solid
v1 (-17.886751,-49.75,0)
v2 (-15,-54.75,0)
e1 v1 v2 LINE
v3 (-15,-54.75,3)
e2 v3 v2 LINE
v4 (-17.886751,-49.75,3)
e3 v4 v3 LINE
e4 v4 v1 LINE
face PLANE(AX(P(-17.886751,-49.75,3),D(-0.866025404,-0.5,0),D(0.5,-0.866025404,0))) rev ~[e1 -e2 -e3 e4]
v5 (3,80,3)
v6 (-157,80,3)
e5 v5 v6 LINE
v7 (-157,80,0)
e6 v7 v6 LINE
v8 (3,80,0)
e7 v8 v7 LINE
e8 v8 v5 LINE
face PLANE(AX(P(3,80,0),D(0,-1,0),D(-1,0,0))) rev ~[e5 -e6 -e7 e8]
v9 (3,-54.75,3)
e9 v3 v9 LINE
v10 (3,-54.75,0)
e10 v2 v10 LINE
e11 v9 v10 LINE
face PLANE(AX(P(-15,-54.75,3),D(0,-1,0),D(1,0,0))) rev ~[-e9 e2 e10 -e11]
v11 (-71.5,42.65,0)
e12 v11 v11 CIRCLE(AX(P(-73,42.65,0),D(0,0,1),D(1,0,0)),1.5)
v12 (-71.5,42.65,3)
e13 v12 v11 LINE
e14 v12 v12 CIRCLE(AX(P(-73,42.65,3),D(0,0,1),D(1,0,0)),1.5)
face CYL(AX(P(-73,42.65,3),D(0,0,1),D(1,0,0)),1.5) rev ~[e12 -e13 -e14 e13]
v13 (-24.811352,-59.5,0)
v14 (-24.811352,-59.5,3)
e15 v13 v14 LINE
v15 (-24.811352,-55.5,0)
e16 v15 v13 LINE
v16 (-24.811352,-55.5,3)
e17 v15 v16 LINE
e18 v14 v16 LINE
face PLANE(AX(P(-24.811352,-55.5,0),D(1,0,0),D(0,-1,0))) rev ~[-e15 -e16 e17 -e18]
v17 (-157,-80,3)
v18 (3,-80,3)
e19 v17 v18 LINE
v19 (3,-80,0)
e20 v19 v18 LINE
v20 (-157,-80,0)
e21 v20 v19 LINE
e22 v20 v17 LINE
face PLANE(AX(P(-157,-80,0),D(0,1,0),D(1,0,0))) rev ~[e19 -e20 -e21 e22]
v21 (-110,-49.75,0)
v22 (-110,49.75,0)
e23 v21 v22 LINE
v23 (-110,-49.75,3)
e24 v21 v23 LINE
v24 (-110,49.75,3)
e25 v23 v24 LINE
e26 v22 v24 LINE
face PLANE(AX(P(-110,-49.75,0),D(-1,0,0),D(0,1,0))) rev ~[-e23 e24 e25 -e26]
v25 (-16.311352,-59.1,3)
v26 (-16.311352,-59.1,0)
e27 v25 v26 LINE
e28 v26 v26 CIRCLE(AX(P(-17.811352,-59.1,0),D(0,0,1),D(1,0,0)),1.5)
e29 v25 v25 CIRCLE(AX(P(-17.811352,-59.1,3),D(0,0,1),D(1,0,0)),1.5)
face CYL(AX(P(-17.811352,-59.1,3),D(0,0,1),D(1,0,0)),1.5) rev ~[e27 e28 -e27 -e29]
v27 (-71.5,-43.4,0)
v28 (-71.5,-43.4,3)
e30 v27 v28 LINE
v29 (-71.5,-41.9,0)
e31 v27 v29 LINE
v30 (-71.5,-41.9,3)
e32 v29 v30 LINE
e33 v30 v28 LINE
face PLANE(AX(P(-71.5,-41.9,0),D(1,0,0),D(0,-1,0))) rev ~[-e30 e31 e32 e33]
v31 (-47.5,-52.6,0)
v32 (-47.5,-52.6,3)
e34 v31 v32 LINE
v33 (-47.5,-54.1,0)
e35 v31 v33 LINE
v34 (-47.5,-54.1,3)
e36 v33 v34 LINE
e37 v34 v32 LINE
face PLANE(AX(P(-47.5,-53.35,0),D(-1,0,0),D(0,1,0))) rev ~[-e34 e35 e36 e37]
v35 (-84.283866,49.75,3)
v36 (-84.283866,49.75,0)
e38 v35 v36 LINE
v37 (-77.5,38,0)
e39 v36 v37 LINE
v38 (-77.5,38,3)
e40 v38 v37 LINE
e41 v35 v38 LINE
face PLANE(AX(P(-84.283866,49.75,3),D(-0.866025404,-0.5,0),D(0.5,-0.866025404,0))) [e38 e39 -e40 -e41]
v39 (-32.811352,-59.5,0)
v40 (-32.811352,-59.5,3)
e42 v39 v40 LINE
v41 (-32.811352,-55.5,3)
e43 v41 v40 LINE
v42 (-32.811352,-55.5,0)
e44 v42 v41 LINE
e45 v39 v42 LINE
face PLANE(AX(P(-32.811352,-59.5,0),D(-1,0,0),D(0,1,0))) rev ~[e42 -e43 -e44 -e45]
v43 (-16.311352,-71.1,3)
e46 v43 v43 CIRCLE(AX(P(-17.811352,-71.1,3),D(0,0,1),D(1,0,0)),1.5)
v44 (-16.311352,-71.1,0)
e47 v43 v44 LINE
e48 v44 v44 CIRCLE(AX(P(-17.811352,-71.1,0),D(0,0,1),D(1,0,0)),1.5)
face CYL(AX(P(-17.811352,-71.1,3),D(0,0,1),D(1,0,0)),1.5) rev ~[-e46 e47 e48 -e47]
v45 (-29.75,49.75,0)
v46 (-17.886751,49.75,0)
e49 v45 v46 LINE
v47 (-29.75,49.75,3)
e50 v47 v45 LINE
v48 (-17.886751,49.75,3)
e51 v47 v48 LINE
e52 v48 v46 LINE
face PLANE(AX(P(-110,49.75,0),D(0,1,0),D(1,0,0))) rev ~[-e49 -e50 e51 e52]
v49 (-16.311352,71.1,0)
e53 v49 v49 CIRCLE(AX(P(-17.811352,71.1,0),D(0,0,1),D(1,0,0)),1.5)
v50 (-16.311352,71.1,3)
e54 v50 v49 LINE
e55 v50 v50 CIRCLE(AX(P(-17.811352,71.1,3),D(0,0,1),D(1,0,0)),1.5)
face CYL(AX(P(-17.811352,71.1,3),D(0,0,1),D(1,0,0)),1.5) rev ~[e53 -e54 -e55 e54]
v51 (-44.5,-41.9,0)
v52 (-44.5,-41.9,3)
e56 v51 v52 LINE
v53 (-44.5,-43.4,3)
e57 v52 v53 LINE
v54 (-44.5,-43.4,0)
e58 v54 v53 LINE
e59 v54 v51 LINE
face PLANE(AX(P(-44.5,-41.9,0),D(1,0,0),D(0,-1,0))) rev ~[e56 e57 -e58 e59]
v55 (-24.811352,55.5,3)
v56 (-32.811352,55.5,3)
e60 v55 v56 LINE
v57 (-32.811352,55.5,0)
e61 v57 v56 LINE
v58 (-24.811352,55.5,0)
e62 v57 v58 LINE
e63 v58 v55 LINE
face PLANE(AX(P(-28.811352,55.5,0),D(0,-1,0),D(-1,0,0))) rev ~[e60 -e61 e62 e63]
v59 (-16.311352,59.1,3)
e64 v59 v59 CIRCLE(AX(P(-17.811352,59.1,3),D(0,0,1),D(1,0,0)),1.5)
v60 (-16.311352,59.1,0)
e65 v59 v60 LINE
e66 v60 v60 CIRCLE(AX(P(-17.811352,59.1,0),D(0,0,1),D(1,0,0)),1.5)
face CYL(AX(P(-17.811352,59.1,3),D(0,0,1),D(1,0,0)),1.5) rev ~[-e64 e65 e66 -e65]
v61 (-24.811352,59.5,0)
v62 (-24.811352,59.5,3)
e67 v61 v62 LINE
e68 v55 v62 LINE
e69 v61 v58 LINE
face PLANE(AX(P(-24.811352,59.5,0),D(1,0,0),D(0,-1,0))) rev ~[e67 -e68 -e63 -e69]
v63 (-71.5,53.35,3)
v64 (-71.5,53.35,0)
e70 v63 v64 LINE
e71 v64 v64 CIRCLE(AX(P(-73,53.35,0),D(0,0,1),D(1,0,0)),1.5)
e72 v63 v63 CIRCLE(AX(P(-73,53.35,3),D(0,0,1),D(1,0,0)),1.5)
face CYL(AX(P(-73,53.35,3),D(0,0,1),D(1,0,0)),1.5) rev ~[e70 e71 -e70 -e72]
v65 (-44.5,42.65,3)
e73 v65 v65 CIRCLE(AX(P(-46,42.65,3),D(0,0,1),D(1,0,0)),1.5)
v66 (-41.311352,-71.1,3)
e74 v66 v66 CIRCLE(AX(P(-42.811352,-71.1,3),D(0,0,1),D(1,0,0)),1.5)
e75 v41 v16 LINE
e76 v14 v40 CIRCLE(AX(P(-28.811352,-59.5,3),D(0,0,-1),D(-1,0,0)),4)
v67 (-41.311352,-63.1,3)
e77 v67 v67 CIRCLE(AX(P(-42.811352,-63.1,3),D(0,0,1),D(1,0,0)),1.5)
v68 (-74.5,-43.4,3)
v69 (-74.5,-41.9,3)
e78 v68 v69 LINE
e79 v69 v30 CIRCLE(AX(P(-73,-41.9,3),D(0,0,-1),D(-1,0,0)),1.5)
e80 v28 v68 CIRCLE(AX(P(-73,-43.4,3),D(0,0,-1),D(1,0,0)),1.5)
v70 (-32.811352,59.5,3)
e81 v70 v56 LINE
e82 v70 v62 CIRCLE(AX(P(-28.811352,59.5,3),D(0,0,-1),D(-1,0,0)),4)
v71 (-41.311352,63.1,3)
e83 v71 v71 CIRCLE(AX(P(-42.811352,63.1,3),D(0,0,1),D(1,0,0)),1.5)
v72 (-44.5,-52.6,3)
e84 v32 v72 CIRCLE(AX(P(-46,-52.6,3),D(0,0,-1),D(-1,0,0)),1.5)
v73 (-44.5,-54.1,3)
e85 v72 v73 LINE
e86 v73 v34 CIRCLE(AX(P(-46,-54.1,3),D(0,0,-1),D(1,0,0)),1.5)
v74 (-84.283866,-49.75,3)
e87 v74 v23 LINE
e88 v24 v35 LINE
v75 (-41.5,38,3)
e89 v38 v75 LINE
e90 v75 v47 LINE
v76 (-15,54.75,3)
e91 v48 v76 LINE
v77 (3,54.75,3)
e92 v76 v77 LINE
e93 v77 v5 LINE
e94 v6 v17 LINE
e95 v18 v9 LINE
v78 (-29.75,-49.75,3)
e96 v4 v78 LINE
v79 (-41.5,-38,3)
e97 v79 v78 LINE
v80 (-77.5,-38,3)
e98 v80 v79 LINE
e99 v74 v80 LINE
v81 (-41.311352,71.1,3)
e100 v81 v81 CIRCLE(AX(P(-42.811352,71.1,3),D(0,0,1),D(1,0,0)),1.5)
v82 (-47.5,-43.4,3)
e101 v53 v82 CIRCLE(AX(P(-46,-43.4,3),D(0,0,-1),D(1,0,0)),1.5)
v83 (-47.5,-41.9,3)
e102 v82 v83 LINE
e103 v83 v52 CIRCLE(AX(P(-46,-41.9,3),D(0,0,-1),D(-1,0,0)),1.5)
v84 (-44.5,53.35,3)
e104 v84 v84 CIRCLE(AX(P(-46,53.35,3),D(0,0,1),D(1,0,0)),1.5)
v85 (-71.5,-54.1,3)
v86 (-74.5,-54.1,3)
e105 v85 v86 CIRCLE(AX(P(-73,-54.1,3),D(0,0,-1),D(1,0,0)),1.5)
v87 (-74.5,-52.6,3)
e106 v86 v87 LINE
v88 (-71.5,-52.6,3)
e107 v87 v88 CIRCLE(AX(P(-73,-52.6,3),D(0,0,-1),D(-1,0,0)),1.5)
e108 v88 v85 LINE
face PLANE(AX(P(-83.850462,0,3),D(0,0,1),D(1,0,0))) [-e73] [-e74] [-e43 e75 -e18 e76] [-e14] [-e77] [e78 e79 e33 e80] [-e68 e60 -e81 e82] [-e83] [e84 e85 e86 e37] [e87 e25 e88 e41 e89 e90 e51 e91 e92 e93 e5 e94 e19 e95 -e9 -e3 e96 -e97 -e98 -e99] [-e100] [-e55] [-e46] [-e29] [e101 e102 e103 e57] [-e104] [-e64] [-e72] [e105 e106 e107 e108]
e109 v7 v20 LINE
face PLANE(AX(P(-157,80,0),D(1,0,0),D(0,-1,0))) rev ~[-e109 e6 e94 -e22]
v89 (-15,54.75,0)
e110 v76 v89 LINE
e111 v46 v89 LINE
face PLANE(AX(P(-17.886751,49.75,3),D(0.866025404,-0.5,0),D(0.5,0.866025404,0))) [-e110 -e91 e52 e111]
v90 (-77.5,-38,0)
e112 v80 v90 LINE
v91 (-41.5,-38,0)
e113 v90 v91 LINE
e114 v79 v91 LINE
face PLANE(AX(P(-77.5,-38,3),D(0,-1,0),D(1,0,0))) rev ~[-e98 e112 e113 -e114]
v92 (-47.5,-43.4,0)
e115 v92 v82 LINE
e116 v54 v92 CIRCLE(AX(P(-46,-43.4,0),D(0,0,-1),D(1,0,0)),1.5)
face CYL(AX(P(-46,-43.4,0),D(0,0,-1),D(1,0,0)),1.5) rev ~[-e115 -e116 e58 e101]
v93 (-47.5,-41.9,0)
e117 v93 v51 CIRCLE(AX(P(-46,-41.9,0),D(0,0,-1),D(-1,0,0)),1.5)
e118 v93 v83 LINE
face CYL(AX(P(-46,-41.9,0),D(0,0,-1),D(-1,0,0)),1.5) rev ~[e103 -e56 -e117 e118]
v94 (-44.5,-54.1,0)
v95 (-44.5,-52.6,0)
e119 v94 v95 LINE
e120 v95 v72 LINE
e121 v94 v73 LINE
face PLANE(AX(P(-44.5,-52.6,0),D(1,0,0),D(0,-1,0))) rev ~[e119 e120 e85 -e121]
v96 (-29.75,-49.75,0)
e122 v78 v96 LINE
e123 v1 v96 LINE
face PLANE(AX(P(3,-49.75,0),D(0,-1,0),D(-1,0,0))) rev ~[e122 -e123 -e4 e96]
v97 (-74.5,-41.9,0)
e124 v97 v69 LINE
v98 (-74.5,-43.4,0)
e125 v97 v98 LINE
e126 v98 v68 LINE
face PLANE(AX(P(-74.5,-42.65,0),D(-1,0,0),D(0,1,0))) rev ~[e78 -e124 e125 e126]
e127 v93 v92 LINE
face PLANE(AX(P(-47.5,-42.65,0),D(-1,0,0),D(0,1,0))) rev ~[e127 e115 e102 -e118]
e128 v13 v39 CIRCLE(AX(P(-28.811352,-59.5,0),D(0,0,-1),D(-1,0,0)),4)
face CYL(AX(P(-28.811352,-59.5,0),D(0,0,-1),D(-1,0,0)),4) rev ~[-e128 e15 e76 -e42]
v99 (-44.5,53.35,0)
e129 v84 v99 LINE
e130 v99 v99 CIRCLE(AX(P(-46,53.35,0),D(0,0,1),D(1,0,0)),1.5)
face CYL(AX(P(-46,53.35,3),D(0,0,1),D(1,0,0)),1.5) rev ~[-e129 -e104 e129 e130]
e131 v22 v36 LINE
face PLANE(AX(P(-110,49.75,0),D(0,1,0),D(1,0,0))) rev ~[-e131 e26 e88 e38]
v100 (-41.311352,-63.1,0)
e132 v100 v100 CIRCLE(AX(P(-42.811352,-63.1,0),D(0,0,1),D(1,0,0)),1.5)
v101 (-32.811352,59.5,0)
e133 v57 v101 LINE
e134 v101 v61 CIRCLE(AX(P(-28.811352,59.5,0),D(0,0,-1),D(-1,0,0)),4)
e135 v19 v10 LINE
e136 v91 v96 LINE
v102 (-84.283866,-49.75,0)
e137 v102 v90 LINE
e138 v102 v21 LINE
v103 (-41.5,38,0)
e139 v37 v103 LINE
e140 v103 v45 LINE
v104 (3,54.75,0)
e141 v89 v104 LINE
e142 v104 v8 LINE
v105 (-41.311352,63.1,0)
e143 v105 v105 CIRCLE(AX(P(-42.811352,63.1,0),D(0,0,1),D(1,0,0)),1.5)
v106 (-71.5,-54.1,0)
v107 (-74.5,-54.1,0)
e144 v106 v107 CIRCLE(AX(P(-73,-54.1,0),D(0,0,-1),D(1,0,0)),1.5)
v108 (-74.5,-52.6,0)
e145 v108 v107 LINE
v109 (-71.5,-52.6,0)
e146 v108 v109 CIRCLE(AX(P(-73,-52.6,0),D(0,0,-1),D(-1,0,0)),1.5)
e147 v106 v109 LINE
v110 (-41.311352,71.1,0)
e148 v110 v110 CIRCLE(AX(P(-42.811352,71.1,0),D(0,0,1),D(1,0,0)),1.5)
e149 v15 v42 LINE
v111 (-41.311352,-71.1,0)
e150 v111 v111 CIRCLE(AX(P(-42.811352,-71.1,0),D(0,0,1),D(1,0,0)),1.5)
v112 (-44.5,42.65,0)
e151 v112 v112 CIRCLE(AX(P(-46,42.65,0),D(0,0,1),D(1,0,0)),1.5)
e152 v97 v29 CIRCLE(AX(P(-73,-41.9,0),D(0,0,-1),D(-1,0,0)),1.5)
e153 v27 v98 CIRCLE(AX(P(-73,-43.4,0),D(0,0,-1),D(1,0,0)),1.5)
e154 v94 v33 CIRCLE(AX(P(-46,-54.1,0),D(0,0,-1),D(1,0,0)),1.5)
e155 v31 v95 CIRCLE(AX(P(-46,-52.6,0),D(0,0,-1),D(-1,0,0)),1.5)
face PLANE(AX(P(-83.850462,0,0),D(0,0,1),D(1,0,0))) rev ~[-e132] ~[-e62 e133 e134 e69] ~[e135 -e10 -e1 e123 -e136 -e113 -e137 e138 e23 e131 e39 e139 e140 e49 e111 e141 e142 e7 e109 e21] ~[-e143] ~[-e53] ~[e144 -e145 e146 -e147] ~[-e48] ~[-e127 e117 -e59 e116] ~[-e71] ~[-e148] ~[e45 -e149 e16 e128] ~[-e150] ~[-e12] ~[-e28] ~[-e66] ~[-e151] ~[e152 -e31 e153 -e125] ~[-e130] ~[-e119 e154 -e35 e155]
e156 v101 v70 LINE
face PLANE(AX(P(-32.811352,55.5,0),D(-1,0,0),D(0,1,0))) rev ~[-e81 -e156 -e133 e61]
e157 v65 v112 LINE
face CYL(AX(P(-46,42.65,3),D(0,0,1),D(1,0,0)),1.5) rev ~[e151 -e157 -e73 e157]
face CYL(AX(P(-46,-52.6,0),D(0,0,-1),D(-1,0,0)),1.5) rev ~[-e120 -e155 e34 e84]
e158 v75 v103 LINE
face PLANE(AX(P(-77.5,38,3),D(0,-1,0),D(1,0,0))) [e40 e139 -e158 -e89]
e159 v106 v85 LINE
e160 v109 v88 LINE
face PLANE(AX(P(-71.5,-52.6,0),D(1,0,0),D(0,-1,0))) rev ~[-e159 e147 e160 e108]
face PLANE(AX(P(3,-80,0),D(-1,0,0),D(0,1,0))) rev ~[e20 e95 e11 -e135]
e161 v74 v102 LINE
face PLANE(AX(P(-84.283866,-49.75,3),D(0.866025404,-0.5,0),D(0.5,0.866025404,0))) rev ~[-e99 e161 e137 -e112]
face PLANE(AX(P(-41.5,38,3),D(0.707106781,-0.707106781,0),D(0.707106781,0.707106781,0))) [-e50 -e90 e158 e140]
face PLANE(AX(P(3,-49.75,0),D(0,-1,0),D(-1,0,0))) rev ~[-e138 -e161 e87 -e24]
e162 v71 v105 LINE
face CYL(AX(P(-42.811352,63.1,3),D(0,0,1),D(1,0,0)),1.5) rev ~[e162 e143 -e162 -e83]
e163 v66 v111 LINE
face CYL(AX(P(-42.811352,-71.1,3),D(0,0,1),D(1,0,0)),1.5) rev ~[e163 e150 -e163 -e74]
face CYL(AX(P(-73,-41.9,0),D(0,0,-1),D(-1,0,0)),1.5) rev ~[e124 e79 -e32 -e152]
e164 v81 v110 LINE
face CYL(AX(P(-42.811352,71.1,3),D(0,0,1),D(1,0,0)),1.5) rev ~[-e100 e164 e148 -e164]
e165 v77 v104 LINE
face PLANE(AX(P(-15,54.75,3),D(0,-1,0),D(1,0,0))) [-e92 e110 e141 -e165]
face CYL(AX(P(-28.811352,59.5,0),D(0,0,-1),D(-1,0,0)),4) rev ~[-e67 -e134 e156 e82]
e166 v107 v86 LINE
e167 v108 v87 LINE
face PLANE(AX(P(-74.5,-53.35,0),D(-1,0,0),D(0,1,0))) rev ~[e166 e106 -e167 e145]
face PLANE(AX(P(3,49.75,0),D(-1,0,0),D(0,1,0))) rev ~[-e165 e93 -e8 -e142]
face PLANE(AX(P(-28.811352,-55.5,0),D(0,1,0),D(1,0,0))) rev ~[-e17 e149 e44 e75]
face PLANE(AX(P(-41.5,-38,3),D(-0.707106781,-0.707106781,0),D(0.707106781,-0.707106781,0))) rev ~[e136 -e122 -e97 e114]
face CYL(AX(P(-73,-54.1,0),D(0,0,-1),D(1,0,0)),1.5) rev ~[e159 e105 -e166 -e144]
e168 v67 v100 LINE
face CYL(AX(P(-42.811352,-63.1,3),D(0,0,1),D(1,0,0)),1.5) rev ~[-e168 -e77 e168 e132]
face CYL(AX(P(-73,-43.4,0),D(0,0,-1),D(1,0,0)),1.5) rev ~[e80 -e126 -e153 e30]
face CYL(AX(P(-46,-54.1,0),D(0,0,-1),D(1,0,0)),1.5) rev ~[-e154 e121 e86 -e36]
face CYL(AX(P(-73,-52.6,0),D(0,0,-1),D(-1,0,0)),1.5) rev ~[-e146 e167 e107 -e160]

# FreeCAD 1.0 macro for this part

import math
import FreeCAD as App
import Part
import Sketcher
Q = App.Units.Quantity


def add_polygon(sketch, points):
    """Adds a closed chain of lines whose ends are joined by coincident constraints."""
    first, n = sketch.GeometryCount, len(points)
    for a, b in zip(points, points[1:] + points[:1]):
        sketch.addGeometry(Part.LineSegment(App.Vector(*a, 0), App.Vector(*b, 0)), False)
    for i in range(n):
        sketch.addConstraint(Sketcher.Constraint("Coincident", first + i, 2, first + (i + 1) % n, 1))

doc = App.newDocument("Part")
params = doc.addObject("Spreadsheet::Sheet", "Params")
for row, (alias, value) in enumerate([
    ("sketch1_width", "113 mm"),
    ("sketch1_width2", "160 mm"),
    ("sketch1_height", "99.5 mm"),
    ("pad1_length", "3 mm"),
    ("sketch2_width", "36 mm"),
    ("pad2_length", "3 mm"),
    ("sketch3_width", "18 mm"),
    ("sketch3_height", "5 mm"),
    ("sketch4_diameter", "3 mm"),
    ("pocket2_length", "10 mm"),
    ("sketch5_diameter", "8 mm"),
    ("pocket3_length", "6 mm"),
    ("sketch6_diameter", "3 mm"),
    ("pocket4_length", "4 mm"),
    ("sketch7_radius", "4 mm"),
    ("pocket5_length", "10 mm"),
    ("sketch8_radius", "1.5 mm"),
    ("sketch8_height", "0.75 mm"),
], start=1):
    params.set(f"A{row}", alias)
    params.set(f"B{row}", "=" + value)
    params.setAlias(f"B{row}", alias)

body = doc.addObject("PartDesign::Body", "Body")

# Sketch on XY plane
sketch1 = body.newObject("Sketcher::SketchObject", "Sketch")
sketch1.AttachmentSupport = (doc.getObject("XY_Plane"), [""])
sketch1.MapMode = "FlatFace"
add_polygon(sketch1, [(-110, 50), (3, 50), (3, 80), (-157, 80), (-157, -80), (3, -80), (3, -50), (-110, -50)])  # lines 0-7
sketch1.addConstraint([
    Sketcher.Constraint("Horizontal", 0),
    Sketcher.Constraint("Vertical", 1),
    Sketcher.Constraint("Horizontal", 2),
    Sketcher.Constraint("Vertical", 3),
    Sketcher.Constraint("Horizontal", 4),
    Sketcher.Constraint("Vertical", 5),
    Sketcher.Constraint("Horizontal", 6),
    Sketcher.Constraint("Vertical", 7),
    Sketcher.Constraint("Symmetric", 1, 2, 4, 2, -1),
    Sketcher.Constraint("Equal", 4, 3),
    Sketcher.Constraint("Equal", 1, 5),
    Sketcher.Constraint("DistanceX", 0, 1, 0, 2, Q("113 mm")),
    Sketcher.Constraint("DistanceX", 2, 2, 2, 1, Q("160 mm")),
    Sketcher.Constraint("DistanceY", 7, 1, 7, 2, Q("99.5 mm")),
    Sketcher.Constraint("DistanceX", -1, 1, 0, 2, Q("3 mm")),
])
sketch1.setExpression("Constraints[19]", "Params.sketch1_width")
sketch1.setExpression("Constraints[20]", "Params.sketch1_width2")
sketch1.setExpression("Constraints[21]", "Params.sketch1_height")
pad1 = body.newObject("PartDesign::Pad", "Pad")
pad1.Profile = sketch1
pad1.setExpression("Length", "Params.pad1_length")

# Sketch on XY plane
sketch2 = body.newObject("Sketcher::SketchObject", "Sketch001")
sketch2.AttachmentSupport = (doc.getObject("XY_Plane"), [""])
sketch2.MapMode = "FlatFace"
sketch2.AttachmentOffset = App.Placement(App.Vector(0, 0, 3), App.Rotation())
add_polygon(sketch2, [(-78, 38), (-42, 38), (-30, 50), (-84, 50)])  # lines 0-3
add_polygon(sketch2, [(-84, -50), (-30, -50), (-42, -38), (-78, -38)])  # lines 4-7
sketch2.addConstraint([
    Sketcher.Constraint("Horizontal", 0),
    Sketcher.Constraint("Horizontal", 2),
    Sketcher.Constraint("Horizontal", 4),
    Sketcher.Constraint("Horizontal", 6),
    Sketcher.Constraint("Symmetric", 1, 2, 4, 2, -1),
    Sketcher.Constraint("Symmetric", 0, 2, 5, 2, -1),
    Sketcher.Constraint("Perpendicular", 1, 5),
    Sketcher.Constraint("Vertical", 3, 2, 6, 2),
    Sketcher.Constraint("Vertical", 2, 2, 7, 2),
    Sketcher.Constraint("DistanceX", 0, 1, 0, 2, Q("36 mm")),
    Sketcher.Constraint("Angle", 3, Q("-60 deg")),
    Sketcher.Constraint("DistanceY", -1, 1, 0, 2, Q("38 mm")),
    Sketcher.Constraint("DistanceX", 0, 2, -1, 1, Q("41.5 mm")),
    Sketcher.Constraint("DistanceY", 4, 2, 1, 2, Q("99.5 mm")),
])
sketch2.setExpression("Constraints[17]", "Params.sketch2_width")
pad2 = body.newObject("PartDesign::Pad", "Pad001")
pad2.Profile = sketch2
pad2.setExpression("Length", "Params.pad2_length")
pad2.Reversed = True

# Sketch on XY plane
sketch3 = body.newObject("Sketcher::SketchObject", "Sketch002")
sketch3.AttachmentSupport = (doc.getObject("XY_Plane"), [""])
sketch3.MapMode = "FlatFace"
sketch3.AttachmentOffset = App.Placement(App.Vector(0, 0, 3), App.Rotation())
add_polygon(sketch3, [(-18, -50), (-15, -55), (3, -55), (3, -50)])  # lines 0-3
add_polygon(sketch3, [(-15, 55), (-18, 50), (3, 50), (3, 55)])  # lines 4-7
sketch3.addConstraint([
    Sketcher.Constraint("Horizontal", 1),
    Sketcher.Constraint("Vertical", 2),
    Sketcher.Constraint("Horizontal", 3),
    Sketcher.Constraint("Horizontal", 5),
    Sketcher.Constraint("Vertical", 6),
    Sketcher.Constraint("Horizontal", 7),
    Sketcher.Constraint("Symmetric", 3, 2, 4, 2, -1),
    Sketcher.Constraint("Symmetric", 1, 2, 6, 2, -1),
    Sketcher.Constraint("Vertical", 0, 2, 7, 2),
    Sketcher.Constraint("DistanceX", 1, 1, 1, 2, Q("18 mm")),
    Sketcher.Constraint("DistanceY", 2, 1, 2, 2, Q("5 mm")),
    Sketcher.Constraint("Angle", 0, Q("-60 deg")),
    Sketcher.Constraint("DistanceX", 0, 2, -1, 1, Q("15 mm")),
    Sketcher.Constraint("DistanceY", 3, 2, 4, 2, Q("99.5 mm")),
])
sketch3.setExpression("Constraints[17]", "Params.sketch3_width")
sketch3.setExpression("Constraints[18]", "Params.sketch3_height")
pocket1 = body.newObject("PartDesign::Pocket", "Pocket")
pocket1.Profile = sketch3
pocket1.Type = "ThroughAll"

# Sketch on XY plane
sketch4 = body.newObject("Sketcher::SketchObject", "Sketch003")
sketch4.AttachmentSupport = (doc.getObject("XY_Plane"), [""])
sketch4.MapMode = "FlatFace"
sketch4.AttachmentOffset = App.Placement(App.Vector(0, 0, 3), App.Rotation())
sketch4.addGeometry([
    Part.Circle(App.Vector(-73, -42.6, 0), App.Vector(0, 0, 1), 1.5),  # 0
    Part.Circle(App.Vector(-46, -42.6, 0), App.Vector(0, 0, 1), 1.5),  # 1
    Part.Circle(App.Vector(-46, -53.4, 0), App.Vector(0, 0, 1), 1.5),  # 2
    Part.Circle(App.Vector(-73, -53.4, 0), App.Vector(0, 0, 1), 1.5),  # 3
    Part.Circle(App.Vector(-46, 42.6, 0), App.Vector(0, 0, 1), 1.5),  # 4
    Part.Circle(App.Vector(-73, 42.6, 0), App.Vector(0, 0, 1), 1.5),  # 5
    Part.Circle(App.Vector(-73, 53.4, 0), App.Vector(0, 0, 1), 1.5),  # 6
    Part.Circle(App.Vector(-46, 53.4, 0), App.Vector(0, 0, 1), 1.5),  # 7
], False)
sketch4.addConstraint([
    Sketcher.Constraint("Equal", 0, 1),
    Sketcher.Constraint("Equal", 1, 2),
    Sketcher.Constraint("Equal", 2, 3),
    Sketcher.Constraint("Equal", 3, 4),
    Sketcher.Constraint("Equal", 4, 5),
    Sketcher.Constraint("Equal", 5, 6),
    Sketcher.Constraint("Equal", 6, 7),
    Sketcher.Constraint("Symmetric", 1, 3, 4, 3, -1),
    Sketcher.Constraint("Symmetric", 0, 3, 5, 3, -1),
    Sketcher.Constraint("Symmetric", 3, 3, 6, 3, -1),
    Sketcher.Constraint("Symmetric", 2, 3, 7, 3, -1),
    Sketcher.Constraint("Horizontal", 0, 3, 1, 3),
    Sketcher.Constraint("Horizontal", 2, 3, 3, 3),
    Sketcher.Constraint("Vertical", 1, 3, 2, 3),
    Sketcher.Constraint("Vertical", 0, 3, 3, 3),
    Sketcher.Constraint("Diameter", 0, Q("3 mm")),
    Sketcher.Constraint("DistanceX", 0, 3, -1, 1, Q("73 mm")),
    Sketcher.Constraint("DistanceX", 1, 3, -1, 1, Q("46 mm")),
    Sketcher.Constraint("DistanceY", 2, 3, 4, 3, Q("96 mm")),
    Sketcher.Constraint("DistanceY", 2, 3, 1, 3, Q("10.7 mm")),
])
sketch4.setExpression("Constraints[15]", "Params.sketch4_diameter")
pocket2 = body.newObject("PartDesign::Pocket", "Pocket001")
pocket2.Profile = sketch4
pocket2.setExpression("Length", "Params.pocket2_length")

# Sketch on XY plane
sketch5 = body.newObject("Sketcher::SketchObject", "Sketch004")
sketch5.AttachmentSupport = (doc.getObject("XY_Plane"), [""])
sketch5.MapMode = "FlatFace"
sketch5.addGeometry([
    Part.Circle(App.Vector(-28.8, -59.5, 0), App.Vector(0, 0, 1), 4),
    Part.Circle(App.Vector(-28.8, 59.5, 0), App.Vector(0, 0, 1), 4),
], False)
sketch5.addConstraint([
    Sketcher.Constraint("Equal", 0, 1),
    Sketcher.Constraint("Symmetric", 0, 3, 1, 3, -1),
    Sketcher.Constraint("Diameter", 0, Q("8 mm")),
    Sketcher.Constraint("DistanceY", 0, 3, 1, 3, Q("119 mm")),
    Sketcher.Constraint("DistanceX", 0, 3, -1, 1, Q("28.811352 mm")),
])
sketch5.setExpression("Constraints[2]", "Params.sketch5_diameter")
pocket3 = body.newObject("PartDesign::Pocket", "Pocket002")
pocket3.Profile = sketch5
pocket3.setExpression("Length", "Params.pocket3_length")
pocket3.Reversed = True

# Sketch on XY plane
sketch6 = body.newObject("Sketcher::SketchObject", "Sketch005")
sketch6.AttachmentSupport = (doc.getObject("XY_Plane"), [""])
sketch6.MapMode = "FlatFace"
sketch6.AttachmentOffset = App.Placement(App.Vector(0, 0, 3), App.Rotation())
sketch6.addGeometry([
    Part.Circle(App.Vector(-17.8, 59.1, 0), App.Vector(0, 0, 1), 1.5),  # 0
    Part.Circle(App.Vector(-17.8, 71.1, 0), App.Vector(0, 0, 1), 1.5),  # 1
    Part.Circle(App.Vector(-42.8, 63.1, 0), App.Vector(0, 0, 1), 1.5),  # 2
    Part.Circle(App.Vector(-42.8, 71.1, 0), App.Vector(0, 0, 1), 1.5),  # 3
    Part.Circle(App.Vector(-42.8, -71.1, 0), App.Vector(0, 0, 1), 1.5),  # 4
    Part.Circle(App.Vector(-42.8, -63.1, 0), App.Vector(0, 0, 1), 1.5),  # 5
    Part.Circle(App.Vector(-17.8, -59.1, 0), App.Vector(0, 0, 1), 1.5),  # 6
    Part.Circle(App.Vector(-17.8, -71.1, 0), App.Vector(0, 0, 1), 1.5),  # 7
], False)
sketch6.addConstraint([
    Sketcher.Constraint("Equal", 0, 1),
    Sketcher.Constraint("Equal", 1, 2),
    Sketcher.Constraint("Equal", 2, 3),
    Sketcher.Constraint("Equal", 3, 4),
    Sketcher.Constraint("Equal", 4, 5),
    Sketcher.Constraint("Equal", 5, 6),
    Sketcher.Constraint("Equal", 6, 7),
    Sketcher.Constraint("Symmetric", 3, 3, 4, 3, -1),
    Sketcher.Constraint("Symmetric", 2, 3, 5, 3, -1),
    Sketcher.Constraint("Symmetric", 0, 3, 6, 3, -1),
    Sketcher.Constraint("Symmetric", 1, 3, 7, 3, -1),
    Sketcher.Constraint("Horizontal", 1, 3, 3, 3),
    Sketcher.Constraint("Vertical", 0, 3, 1, 3),
    Sketcher.Constraint("Vertical", 2, 3, 3, 3),
    Sketcher.Constraint("Diameter", 0, Q("3 mm")),
    Sketcher.Constraint("DistanceY", 0, 3, 1, 3, Q("12 mm")),
    Sketcher.Constraint("DistanceX", 2, 3, 0, 3, Q("25 mm")),
    Sketcher.Constraint("DistanceY", 0, 3, 2, 3, Q("4 mm")),
    Sketcher.Constraint("DistanceY", -1, 1, 0, 3, Q("59.1 mm")),
    Sketcher.Constraint("DistanceX", 0, 3, -1, 1, Q("17.811352 mm")),
])
sketch6.setExpression("Constraints[14]", "Params.sketch6_diameter")
pocket4 = body.newObject("PartDesign::Pocket", "Pocket003")
pocket4.Profile = sketch6
pocket4.setExpression("Length", "Params.pocket4_length")

# Sketch on XY plane
sketch7 = body.newObject("Sketcher::SketchObject", "Sketch006")
sketch7.AttachmentSupport = (doc.getObject("XY_Plane"), [""])
sketch7.MapMode = "FlatFace"
sketch7.addGeometry([
    Part.LineSegment(App.Vector(-32.8, -55.5, 0), App.Vector(-28.8, -55.5, 0)),  # 0
    Part.ArcOfCircle(Part.Circle(App.Vector(-28.8, -59.5, 0), App.Vector(0, 0, 1), 4), math.radians(90), math.radians(180)),  # 1
    Part.LineSegment(App.Vector(-32.8, -59.5, 0), App.Vector(-32.8, -55.5, 0)),  # 2
    Part.LineSegment(App.Vector(-24.8, -55.5, 0), App.Vector(-24.8, -59.5, 0)),  # 3
    Part.ArcOfCircle(Part.Circle(App.Vector(-28.8, -59.5, 0), App.Vector(0, 0, 1), 4), math.radians(0), math.radians(90)),  # 4
    Part.LineSegment(App.Vector(-28.8, -55.5, 0), App.Vector(-24.8, -55.5, 0)),  # 5
    Part.ArcOfCircle(Part.Circle(App.Vector(-28.8, 59.5, 0), App.Vector(0, 0, 1), 4), math.radians(-90), math.radians(0)),  # 6
    Part.LineSegment(App.Vector(-24.8, 59.5, 0), App.Vector(-24.8, 55.5, 0)),  # 7
    Part.LineSegment(App.Vector(-24.8, 55.5, 0), App.Vector(-28.8, 55.5, 0)),  # 8
    Part.LineSegment(App.Vector(-32.8, 55.5, 0), App.Vector(-32.8, 59.5, 0)),  # 9
    Part.ArcOfCircle(Part.Circle(App.Vector(-28.8, 59.5, 0), App.Vector(0, 0, 1), 4), math.radians(180), math.radians(270)),  # 10
    Part.LineSegment(App.Vector(-28.8, 55.5, 0), App.Vector(-32.8, 55.5, 0)),  # 11
], False)
sketch7.addConstraint([
    Sketcher.Constraint("Tangent", 0, 2, 1, 1),
    Sketcher.Constraint("Tangent", 1, 2, 2, 1),
    Sketcher.Constraint("Coincident", 2, 2, 0, 1),
    Sketcher.Constraint("Tangent", 3, 2, 4, 1),
    Sketcher.Constraint("Tangent", 4, 2, 5, 1),
    Sketcher.Constraint("Coincident", 5, 2, 3, 1),
    Sketcher.Constraint("Tangent", 6, 2, 7, 1),
    Sketcher.Constraint("Coincident", 7, 2, 8, 1),
    Sketcher.Constraint("Tangent", 8, 2, 6, 1),
    Sketcher.Constraint("Tangent", 9, 2, 10, 1),
    Sketcher.Constraint("Tangent", 10, 2, 11, 1),
    Sketcher.Constraint("Coincident", 11, 2, 9, 1),
    Sketcher.Constraint("Horizontal", 0),
    Sketcher.Constraint("Vertical", 2),
    Sketcher.Constraint("Vertical", 3),
    Sketcher.Constraint("Horizontal", 5),
    Sketcher.Constraint("Vertical", 7),
    Sketcher.Constraint("Horizontal", 8),
    Sketcher.Constraint("Vertical", 9),
    Sketcher.Constraint("Horizontal", 11),
    Sketcher.Constraint("Coincident", 4, 3, 1, 3),
    Sketcher.Constraint("Coincident", 10, 3, 6, 3),
    Sketcher.Constraint("Equal", 1, 4),
    Sketcher.Constraint("Equal", 4, 6),
    Sketcher.Constraint("Equal", 6, 10),
    Sketcher.Constraint("Symmetric", 1, 3, 6, 3, -1),
    Sketcher.Constraint("Radius", 1, Q("4 mm")),
    Sketcher.Constraint("DistanceY", 1, 3, 6, 3, Q("119 mm")),
    Sketcher.Constraint("DistanceX", 1, 3, -1, 1, Q("28.811352 mm")),
])
sketch7.setExpression("Constraints[26]", "Params.sketch7_radius")
pocket5 = body.newObject("PartDesign::Pocket", "Pocket004")
pocket5.Profile = sketch7
pocket5.setExpression("Length", "Params.pocket5_length")
pocket5.Reversed = True

# Sketch on XY plane
sketch8 = body.newObject("Sketcher::SketchObject", "Sketch007")
sketch8.AttachmentSupport = (doc.getObject("XY_Plane"), [""])
sketch8.MapMode = "FlatFace"
sketch8.addGeometry([
    Part.LineSegment(App.Vector(-71.5, -52.6, 0), App.Vector(-71.5, -53.4, 0)),  # 0
    Part.ArcOfCircle(Part.Circle(App.Vector(-73, -53.4, 0), App.Vector(0, 0, 1), 1.5), math.radians(0), math.radians(180)),  # 1
    Part.LineSegment(App.Vector(-74.5, -53.4, 0), App.Vector(-74.5, -52.6, 0)),  # 2
    Part.ArcOfCircle(Part.Circle(App.Vector(-73, -52.6, 0), App.Vector(0, 0, 1), 1.5), math.radians(0), math.radians(180)),  # 3
    Part.LineSegment(App.Vector(-71.5, -53.4, 0), App.Vector(-71.5, -54.1, 0)),  # 4
    Part.ArcOfCircle(Part.Circle(App.Vector(-73, -54.1, 0), App.Vector(0, 0, 1), 1.5), math.radians(180), math.radians(360)),  # 5
    Part.LineSegment(App.Vector(-74.5, -54.1, 0), App.Vector(-74.5, -53.4, 0)),  # 6
    Part.ArcOfCircle(Part.Circle(App.Vector(-73, -53.4, 0), App.Vector(0, 0, 1), 1.5), math.radians(180), math.radians(360)),  # 7
    Part.LineSegment(App.Vector(-74.5, -43.4, 0), App.Vector(-74.5, -42.6, 0)),  # 8
    Part.ArcOfCircle(Part.Circle(App.Vector(-73, -42.6, 0), App.Vector(0, 0, 1), 1.5), math.radians(180), math.radians(360)),  # 9
    Part.LineSegment(App.Vector(-71.5, -42.6, 0), App.Vector(-71.5, -43.4, 0)),  # 10
    Part.ArcOfCircle(Part.Circle(App.Vector(-73, -43.4, 0), App.Vector(0, 0, 1), 1.5), math.radians(180), math.radians(360)),  # 11
    Part.LineSegment(App.Vector(-74.5, -42.6, 0), App.Vector(-74.5, -41.9, 0)),  # 12
    Part.ArcOfCircle(Part.Circle(App.Vector(-73, -41.9, 0), App.Vector(0, 0, 1), 1.5), math.radians(0), math.radians(180)),  # 13
    Part.LineSegment(App.Vector(-71.5, -41.9, 0), App.Vector(-71.5, -42.6, 0)),  # 14
    Part.ArcOfCircle(Part.Circle(App.Vector(-73, -42.6, 0), App.Vector(0, 0, 1), 1.5), math.radians(0), math.radians(180)),  # 15
    Part.LineSegment(App.Vector(-47.5, -42.6, 0), App.Vector(-47.5, -41.9, 0)),  # 16
    Part.ArcOfCircle(Part.Circle(App.Vector(-46, -41.9, 0), App.Vector(0, 0, 1), 1.5), math.radians(0), math.radians(180)),  # 17
    Part.LineSegment(App.Vector(-44.5, -41.9, 0), App.Vector(-44.5, -42.6, 0)),  # 18
    Part.ArcOfCircle(Part.Circle(App.Vector(-46, -42.6, 0), App.Vector(0, 0, 1), 1.5), math.radians(0), math.radians(180)),  # 19
    Part.LineSegment(App.Vector(-47.5, -43.4, 0), App.Vector(-47.5, -42.6, 0)),  # 20
    Part.ArcOfCircle(Part.Circle(App.Vector(-46, -42.6, 0), App.Vector(0, 0, 1), 1.5), math.radians(180), math.radians(360)),  # 21
    Part.LineSegment(App.Vector(-44.5, -42.6, 0), App.Vector(-44.5, -43.4, 0)),  # 22
    Part.ArcOfCircle(Part.Circle(App.Vector(-46, -43.4, 0), App.Vector(0, 0, 1), 1.5), math.radians(180), math.radians(360)),  # 23
    Part.LineSegment(App.Vector(-44.5, -52.6, 0), App.Vector(-44.5, -53.4, 0)),  # 24
    Part.ArcOfCircle(Part.Circle(App.Vector(-46, -53.4, 0), App.Vector(0, 0, 1), 1.5), math.radians(0), math.radians(180)),  # 25
    Part.LineSegment(App.Vector(-47.5, -53.4, 0), App.Vector(-47.5, -52.6, 0)),  # 26
    Part.ArcOfCircle(Part.Circle(App.Vector(-46, -52.6, 0), App.Vector(0, 0, 1), 1.5), math.radians(0), math.radians(180)),  # 27
    Part.LineSegment(App.Vector(-44.5, -53.4, 0), App.Vector(-44.5, -54.1, 0)),  # 28
    Part.ArcOfCircle(Part.Circle(App.Vector(-46, -54.1, 0), App.Vector(0, 0, 1), 1.5), math.radians(180), math.radians(360)),  # 29
    Part.LineSegment(App.Vector(-47.5, -54.1, 0), App.Vector(-47.5, -53.4, 0)),  # 30
    Part.ArcOfCircle(Part.Circle(App.Vector(-46, -53.4, 0), App.Vector(0, 0, 1), 1.5), math.radians(180), math.radians(360)),  # 31
], False)
sketch8.addConstraint([
    Sketcher.Constraint("Tangent", 0, 2, 1, 1),
    Sketcher.Constraint("Tangent", 1, 2, 2, 1),
    Sketcher.Constraint("Tangent", 2, 2, 3, 2),
    Sketcher.Constraint("Tangent", 3, 1, 0, 1),
    Sketcher.Constraint("Tangent", 4, 2, 5, 2),
    Sketcher.Constraint("Tangent", 5, 1, 6, 1),
    Sketcher.Constraint("Tangent", 6, 2, 7, 1),
    Sketcher.Constraint("Tangent", 7, 2, 4, 1),
    Sketcher.Constraint("Tangent", 8, 2, 9, 1),
    Sketcher.Constraint("Tangent", 9, 2, 10, 1),
    Sketcher.Constraint("Tangent", 10, 2, 11, 2),
    Sketcher.Constraint("Tangent", 11, 1, 8, 1),
    Sketcher.Constraint("Tangent", 12, 2, 13, 2),
    Sketcher.Constraint("Tangent", 13, 1, 14, 1),
    Sketcher.Constraint("Tangent", 14, 2, 15, 1),
    Sketcher.Constraint("Tangent", 15, 2, 12, 1),
    Sketcher.Constraint("Tangent", 16, 2, 17, 2),
    Sketcher.Constraint("Tangent", 17, 1, 18, 1),
    Sketcher.Constraint("Tangent", 18, 2, 19, 1),
    Sketcher.Constraint("Tangent", 19, 2, 16, 1),
    Sketcher.Constraint("Tangent", 20, 2, 21, 1),
    Sketcher.Constraint("Tangent", 21, 2, 22, 1),
    Sketcher.Constraint("Tangent", 22, 2, 23, 2),
    Sketcher.Constraint("Tangent", 23, 1, 20, 1),
    Sketcher.Constraint("Tangent", 24, 2, 25, 1),
    Sketcher.Constraint("Tangent", 25, 2, 26, 1),
    Sketcher.Constraint("Tangent", 26, 2, 27, 2),
    Sketcher.Constraint("Tangent", 27, 1, 24, 1),
    Sketcher.Constraint("Tangent", 28, 2, 29, 2),
    Sketcher.Constraint("Tangent", 29, 1, 30, 1),
    Sketcher.Constraint("Tangent", 30, 2, 31, 1),
    Sketcher.Constraint("Tangent", 31, 2, 28, 1),
    Sketcher.Constraint("Vertical", 0),
    Sketcher.Constraint("Vertical", 2),
    Sketcher.Constraint("Vertical", 4),
    Sketcher.Constraint("Vertical", 6),
    Sketcher.Constraint("Vertical", 8),
    Sketcher.Constraint("Vertical", 10),
    Sketcher.Constraint("Vertical", 12),
    Sketcher.Constraint("Vertical", 14),
    Sketcher.Constraint("Vertical", 16),
    Sketcher.Constraint("Vertical", 18),
    Sketcher.Constraint("Vertical", 20),
    Sketcher.Constraint("Vertical", 22),
    Sketcher.Constraint("Vertical", 24),
    Sketcher.Constraint("Vertical", 26),
    Sketcher.Constraint("Vertical", 28),
    Sketcher.Constraint("Vertical", 30),
    Sketcher.Constraint("Coincident", 7, 3, 1, 3),
    Sketcher.Constraint("Coincident", 15, 3, 9, 3),
    Sketcher.Constraint("Coincident", 21, 3, 19, 3),
    Sketcher.Constraint("Coincident", 31, 3, 25, 3),
    Sketcher.Constraint("Equal", 3, 5),
    Sketcher.Constraint("Equal", 7, 9),
    Sketcher.Constraint("Equal", 11, 13),
    Sketcher.Constraint("Equal", 15, 17),
    Sketcher.Constraint("Equal", 19, 21),
    Sketcher.Constraint("Equal", 23, 25),
    Sketcher.Constraint("Equal", 27, 29),
    Sketcher.Constraint("Horizontal", 13, 3, 17, 3),
    Sketcher.Constraint("Horizontal", 15, 3, 19, 3),
    Sketcher.Constraint("Horizontal", 11, 3, 23, 3),
    Sketcher.Constraint("Horizontal", 7, 3, 25, 3),
    Sketcher.Constraint("Horizontal", 3, 3, 27, 3),
    Sketcher.Constraint("Horizontal", 5, 3, 29, 3),
    Sketcher.Constraint("Vertical", 7, 3, 9, 3),
    Sketcher.Constraint("Vertical", 23, 3, 25, 3),
    Sketcher.Constraint("Equal", 2, 4),
    Sketcher.Constraint("Equal", 6, 8),
    Sketcher.Constraint("Equal", 10, 12),
    Sketcher.Constraint("Radius", 1, Q("1.5 mm")),
    Sketcher.Constraint("DistanceX", 1, 3, -1, 1, Q("73 mm")),
    Sketcher.Constraint("DistanceX", 17, 3, -1, 1, Q("46 mm")),
    Sketcher.Constraint("DistanceY", 0, 2, 0, 1, Q("0.75 mm")),
    Sketcher.Constraint("DistanceY", 3, 3, -1, 1, Q("52.6 mm")),
    Sketcher.Constraint("DistanceY", 11, 3, -1, 1, Q("43.4 mm")),
])
sketch8.setExpression("Constraints[70]", "Params.sketch8_radius")
sketch8.setExpression("Constraints[73]", "Params.sketch8_height")
pocket6 = body.newObject("PartDesign::Pocket", "Pocket005")
pocket6.Profile = sketch8
pocket6.Type = "ThroughAll"
pocket6.Reversed = True

doc.recompute()
